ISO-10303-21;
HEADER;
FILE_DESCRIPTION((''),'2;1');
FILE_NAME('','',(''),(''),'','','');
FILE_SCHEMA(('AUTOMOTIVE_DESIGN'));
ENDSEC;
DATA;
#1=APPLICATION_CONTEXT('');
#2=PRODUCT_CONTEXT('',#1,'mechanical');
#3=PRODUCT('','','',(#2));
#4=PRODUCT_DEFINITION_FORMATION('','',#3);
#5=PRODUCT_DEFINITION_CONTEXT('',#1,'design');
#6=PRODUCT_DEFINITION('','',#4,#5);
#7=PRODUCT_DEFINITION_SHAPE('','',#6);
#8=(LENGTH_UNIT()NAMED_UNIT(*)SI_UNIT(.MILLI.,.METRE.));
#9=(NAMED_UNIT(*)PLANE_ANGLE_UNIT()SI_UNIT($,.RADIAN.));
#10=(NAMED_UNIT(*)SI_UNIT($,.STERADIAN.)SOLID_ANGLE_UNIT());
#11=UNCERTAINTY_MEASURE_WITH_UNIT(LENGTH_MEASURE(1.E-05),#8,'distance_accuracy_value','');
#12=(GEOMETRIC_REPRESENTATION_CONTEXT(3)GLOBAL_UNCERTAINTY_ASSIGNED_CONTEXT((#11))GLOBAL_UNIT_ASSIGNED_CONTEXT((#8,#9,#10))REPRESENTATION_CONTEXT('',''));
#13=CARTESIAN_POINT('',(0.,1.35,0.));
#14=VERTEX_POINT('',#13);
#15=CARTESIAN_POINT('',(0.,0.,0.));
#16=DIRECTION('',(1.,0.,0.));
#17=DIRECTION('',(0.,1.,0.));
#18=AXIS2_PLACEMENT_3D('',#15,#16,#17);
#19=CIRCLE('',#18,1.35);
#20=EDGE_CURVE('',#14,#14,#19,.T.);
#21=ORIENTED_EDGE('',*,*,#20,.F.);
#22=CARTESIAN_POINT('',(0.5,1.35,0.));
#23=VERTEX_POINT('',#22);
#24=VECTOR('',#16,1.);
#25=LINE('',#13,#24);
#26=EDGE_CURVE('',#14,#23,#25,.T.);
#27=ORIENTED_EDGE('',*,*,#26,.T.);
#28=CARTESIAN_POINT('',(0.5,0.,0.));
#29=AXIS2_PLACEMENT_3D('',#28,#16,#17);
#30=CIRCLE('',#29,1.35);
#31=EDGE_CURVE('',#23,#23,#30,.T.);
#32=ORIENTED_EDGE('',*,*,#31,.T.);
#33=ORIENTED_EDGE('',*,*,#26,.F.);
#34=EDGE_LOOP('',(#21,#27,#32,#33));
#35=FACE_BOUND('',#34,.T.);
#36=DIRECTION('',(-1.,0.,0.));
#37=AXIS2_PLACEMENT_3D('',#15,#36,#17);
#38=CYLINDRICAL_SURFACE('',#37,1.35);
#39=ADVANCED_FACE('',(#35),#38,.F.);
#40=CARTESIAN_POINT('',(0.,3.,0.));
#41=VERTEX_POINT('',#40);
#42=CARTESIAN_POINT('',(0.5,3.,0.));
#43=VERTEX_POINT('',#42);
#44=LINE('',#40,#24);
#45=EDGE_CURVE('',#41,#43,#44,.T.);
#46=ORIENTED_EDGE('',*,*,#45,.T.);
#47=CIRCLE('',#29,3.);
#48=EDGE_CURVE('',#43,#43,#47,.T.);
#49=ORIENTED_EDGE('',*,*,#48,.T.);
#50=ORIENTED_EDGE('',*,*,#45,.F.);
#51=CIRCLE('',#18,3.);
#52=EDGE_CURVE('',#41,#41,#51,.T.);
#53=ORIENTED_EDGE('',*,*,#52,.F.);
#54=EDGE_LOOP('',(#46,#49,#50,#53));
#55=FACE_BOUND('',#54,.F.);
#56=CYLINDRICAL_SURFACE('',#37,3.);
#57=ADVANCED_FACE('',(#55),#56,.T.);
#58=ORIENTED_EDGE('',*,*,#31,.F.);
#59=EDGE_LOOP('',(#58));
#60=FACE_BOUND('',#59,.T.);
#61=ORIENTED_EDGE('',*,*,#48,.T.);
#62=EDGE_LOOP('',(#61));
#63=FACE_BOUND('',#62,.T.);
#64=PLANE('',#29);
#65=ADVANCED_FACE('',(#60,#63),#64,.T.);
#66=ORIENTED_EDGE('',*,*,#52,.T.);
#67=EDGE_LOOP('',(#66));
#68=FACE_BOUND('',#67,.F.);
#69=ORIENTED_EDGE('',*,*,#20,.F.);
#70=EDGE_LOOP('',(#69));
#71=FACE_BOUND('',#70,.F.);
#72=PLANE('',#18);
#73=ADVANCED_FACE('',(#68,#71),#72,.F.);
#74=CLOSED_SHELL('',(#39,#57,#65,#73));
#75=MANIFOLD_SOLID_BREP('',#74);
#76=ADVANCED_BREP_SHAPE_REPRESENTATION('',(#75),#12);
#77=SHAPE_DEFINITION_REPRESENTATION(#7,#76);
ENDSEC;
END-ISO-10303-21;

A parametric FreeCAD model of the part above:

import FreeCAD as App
import Part
import Sketcher
from FreeCAD import Vector
Q = App.Units.Quantity

doc = App.newDocument("Part")
body = doc.addObject("PartDesign::Body", "Body")

sketch1 = body.newObject("Sketcher::SketchObject", "Sketch")
sketch1.AttachmentSupport = (doc.getObject("YZ_Plane"), [""])
sketch1.MapMode = "FlatFace"
sketch1.addGeometry([
    Part.Circle(Vector(0, 0, 0), Vector(0, 0, 1), 3),
    Part.Circle(Vector(0, 0, 0), Vector(0, 0, 1), 1.4),
], False)
sketch1.addConstraint([
    Sketcher.Constraint("Coincident", 0, 3, -1, 1),
    Sketcher.Constraint("Coincident", 1, 3, -1, 1),
    Sketcher.Constraint("Diameter", 0, Q("6 mm")),
    Sketcher.Constraint("Diameter", 1, Q("2.7 mm")),
])
pad1 = body.newObject("PartDesign::Pad", "Pad")
pad1.Profile = sketch1
pad1.Length = 0.5

doc.recompute()
